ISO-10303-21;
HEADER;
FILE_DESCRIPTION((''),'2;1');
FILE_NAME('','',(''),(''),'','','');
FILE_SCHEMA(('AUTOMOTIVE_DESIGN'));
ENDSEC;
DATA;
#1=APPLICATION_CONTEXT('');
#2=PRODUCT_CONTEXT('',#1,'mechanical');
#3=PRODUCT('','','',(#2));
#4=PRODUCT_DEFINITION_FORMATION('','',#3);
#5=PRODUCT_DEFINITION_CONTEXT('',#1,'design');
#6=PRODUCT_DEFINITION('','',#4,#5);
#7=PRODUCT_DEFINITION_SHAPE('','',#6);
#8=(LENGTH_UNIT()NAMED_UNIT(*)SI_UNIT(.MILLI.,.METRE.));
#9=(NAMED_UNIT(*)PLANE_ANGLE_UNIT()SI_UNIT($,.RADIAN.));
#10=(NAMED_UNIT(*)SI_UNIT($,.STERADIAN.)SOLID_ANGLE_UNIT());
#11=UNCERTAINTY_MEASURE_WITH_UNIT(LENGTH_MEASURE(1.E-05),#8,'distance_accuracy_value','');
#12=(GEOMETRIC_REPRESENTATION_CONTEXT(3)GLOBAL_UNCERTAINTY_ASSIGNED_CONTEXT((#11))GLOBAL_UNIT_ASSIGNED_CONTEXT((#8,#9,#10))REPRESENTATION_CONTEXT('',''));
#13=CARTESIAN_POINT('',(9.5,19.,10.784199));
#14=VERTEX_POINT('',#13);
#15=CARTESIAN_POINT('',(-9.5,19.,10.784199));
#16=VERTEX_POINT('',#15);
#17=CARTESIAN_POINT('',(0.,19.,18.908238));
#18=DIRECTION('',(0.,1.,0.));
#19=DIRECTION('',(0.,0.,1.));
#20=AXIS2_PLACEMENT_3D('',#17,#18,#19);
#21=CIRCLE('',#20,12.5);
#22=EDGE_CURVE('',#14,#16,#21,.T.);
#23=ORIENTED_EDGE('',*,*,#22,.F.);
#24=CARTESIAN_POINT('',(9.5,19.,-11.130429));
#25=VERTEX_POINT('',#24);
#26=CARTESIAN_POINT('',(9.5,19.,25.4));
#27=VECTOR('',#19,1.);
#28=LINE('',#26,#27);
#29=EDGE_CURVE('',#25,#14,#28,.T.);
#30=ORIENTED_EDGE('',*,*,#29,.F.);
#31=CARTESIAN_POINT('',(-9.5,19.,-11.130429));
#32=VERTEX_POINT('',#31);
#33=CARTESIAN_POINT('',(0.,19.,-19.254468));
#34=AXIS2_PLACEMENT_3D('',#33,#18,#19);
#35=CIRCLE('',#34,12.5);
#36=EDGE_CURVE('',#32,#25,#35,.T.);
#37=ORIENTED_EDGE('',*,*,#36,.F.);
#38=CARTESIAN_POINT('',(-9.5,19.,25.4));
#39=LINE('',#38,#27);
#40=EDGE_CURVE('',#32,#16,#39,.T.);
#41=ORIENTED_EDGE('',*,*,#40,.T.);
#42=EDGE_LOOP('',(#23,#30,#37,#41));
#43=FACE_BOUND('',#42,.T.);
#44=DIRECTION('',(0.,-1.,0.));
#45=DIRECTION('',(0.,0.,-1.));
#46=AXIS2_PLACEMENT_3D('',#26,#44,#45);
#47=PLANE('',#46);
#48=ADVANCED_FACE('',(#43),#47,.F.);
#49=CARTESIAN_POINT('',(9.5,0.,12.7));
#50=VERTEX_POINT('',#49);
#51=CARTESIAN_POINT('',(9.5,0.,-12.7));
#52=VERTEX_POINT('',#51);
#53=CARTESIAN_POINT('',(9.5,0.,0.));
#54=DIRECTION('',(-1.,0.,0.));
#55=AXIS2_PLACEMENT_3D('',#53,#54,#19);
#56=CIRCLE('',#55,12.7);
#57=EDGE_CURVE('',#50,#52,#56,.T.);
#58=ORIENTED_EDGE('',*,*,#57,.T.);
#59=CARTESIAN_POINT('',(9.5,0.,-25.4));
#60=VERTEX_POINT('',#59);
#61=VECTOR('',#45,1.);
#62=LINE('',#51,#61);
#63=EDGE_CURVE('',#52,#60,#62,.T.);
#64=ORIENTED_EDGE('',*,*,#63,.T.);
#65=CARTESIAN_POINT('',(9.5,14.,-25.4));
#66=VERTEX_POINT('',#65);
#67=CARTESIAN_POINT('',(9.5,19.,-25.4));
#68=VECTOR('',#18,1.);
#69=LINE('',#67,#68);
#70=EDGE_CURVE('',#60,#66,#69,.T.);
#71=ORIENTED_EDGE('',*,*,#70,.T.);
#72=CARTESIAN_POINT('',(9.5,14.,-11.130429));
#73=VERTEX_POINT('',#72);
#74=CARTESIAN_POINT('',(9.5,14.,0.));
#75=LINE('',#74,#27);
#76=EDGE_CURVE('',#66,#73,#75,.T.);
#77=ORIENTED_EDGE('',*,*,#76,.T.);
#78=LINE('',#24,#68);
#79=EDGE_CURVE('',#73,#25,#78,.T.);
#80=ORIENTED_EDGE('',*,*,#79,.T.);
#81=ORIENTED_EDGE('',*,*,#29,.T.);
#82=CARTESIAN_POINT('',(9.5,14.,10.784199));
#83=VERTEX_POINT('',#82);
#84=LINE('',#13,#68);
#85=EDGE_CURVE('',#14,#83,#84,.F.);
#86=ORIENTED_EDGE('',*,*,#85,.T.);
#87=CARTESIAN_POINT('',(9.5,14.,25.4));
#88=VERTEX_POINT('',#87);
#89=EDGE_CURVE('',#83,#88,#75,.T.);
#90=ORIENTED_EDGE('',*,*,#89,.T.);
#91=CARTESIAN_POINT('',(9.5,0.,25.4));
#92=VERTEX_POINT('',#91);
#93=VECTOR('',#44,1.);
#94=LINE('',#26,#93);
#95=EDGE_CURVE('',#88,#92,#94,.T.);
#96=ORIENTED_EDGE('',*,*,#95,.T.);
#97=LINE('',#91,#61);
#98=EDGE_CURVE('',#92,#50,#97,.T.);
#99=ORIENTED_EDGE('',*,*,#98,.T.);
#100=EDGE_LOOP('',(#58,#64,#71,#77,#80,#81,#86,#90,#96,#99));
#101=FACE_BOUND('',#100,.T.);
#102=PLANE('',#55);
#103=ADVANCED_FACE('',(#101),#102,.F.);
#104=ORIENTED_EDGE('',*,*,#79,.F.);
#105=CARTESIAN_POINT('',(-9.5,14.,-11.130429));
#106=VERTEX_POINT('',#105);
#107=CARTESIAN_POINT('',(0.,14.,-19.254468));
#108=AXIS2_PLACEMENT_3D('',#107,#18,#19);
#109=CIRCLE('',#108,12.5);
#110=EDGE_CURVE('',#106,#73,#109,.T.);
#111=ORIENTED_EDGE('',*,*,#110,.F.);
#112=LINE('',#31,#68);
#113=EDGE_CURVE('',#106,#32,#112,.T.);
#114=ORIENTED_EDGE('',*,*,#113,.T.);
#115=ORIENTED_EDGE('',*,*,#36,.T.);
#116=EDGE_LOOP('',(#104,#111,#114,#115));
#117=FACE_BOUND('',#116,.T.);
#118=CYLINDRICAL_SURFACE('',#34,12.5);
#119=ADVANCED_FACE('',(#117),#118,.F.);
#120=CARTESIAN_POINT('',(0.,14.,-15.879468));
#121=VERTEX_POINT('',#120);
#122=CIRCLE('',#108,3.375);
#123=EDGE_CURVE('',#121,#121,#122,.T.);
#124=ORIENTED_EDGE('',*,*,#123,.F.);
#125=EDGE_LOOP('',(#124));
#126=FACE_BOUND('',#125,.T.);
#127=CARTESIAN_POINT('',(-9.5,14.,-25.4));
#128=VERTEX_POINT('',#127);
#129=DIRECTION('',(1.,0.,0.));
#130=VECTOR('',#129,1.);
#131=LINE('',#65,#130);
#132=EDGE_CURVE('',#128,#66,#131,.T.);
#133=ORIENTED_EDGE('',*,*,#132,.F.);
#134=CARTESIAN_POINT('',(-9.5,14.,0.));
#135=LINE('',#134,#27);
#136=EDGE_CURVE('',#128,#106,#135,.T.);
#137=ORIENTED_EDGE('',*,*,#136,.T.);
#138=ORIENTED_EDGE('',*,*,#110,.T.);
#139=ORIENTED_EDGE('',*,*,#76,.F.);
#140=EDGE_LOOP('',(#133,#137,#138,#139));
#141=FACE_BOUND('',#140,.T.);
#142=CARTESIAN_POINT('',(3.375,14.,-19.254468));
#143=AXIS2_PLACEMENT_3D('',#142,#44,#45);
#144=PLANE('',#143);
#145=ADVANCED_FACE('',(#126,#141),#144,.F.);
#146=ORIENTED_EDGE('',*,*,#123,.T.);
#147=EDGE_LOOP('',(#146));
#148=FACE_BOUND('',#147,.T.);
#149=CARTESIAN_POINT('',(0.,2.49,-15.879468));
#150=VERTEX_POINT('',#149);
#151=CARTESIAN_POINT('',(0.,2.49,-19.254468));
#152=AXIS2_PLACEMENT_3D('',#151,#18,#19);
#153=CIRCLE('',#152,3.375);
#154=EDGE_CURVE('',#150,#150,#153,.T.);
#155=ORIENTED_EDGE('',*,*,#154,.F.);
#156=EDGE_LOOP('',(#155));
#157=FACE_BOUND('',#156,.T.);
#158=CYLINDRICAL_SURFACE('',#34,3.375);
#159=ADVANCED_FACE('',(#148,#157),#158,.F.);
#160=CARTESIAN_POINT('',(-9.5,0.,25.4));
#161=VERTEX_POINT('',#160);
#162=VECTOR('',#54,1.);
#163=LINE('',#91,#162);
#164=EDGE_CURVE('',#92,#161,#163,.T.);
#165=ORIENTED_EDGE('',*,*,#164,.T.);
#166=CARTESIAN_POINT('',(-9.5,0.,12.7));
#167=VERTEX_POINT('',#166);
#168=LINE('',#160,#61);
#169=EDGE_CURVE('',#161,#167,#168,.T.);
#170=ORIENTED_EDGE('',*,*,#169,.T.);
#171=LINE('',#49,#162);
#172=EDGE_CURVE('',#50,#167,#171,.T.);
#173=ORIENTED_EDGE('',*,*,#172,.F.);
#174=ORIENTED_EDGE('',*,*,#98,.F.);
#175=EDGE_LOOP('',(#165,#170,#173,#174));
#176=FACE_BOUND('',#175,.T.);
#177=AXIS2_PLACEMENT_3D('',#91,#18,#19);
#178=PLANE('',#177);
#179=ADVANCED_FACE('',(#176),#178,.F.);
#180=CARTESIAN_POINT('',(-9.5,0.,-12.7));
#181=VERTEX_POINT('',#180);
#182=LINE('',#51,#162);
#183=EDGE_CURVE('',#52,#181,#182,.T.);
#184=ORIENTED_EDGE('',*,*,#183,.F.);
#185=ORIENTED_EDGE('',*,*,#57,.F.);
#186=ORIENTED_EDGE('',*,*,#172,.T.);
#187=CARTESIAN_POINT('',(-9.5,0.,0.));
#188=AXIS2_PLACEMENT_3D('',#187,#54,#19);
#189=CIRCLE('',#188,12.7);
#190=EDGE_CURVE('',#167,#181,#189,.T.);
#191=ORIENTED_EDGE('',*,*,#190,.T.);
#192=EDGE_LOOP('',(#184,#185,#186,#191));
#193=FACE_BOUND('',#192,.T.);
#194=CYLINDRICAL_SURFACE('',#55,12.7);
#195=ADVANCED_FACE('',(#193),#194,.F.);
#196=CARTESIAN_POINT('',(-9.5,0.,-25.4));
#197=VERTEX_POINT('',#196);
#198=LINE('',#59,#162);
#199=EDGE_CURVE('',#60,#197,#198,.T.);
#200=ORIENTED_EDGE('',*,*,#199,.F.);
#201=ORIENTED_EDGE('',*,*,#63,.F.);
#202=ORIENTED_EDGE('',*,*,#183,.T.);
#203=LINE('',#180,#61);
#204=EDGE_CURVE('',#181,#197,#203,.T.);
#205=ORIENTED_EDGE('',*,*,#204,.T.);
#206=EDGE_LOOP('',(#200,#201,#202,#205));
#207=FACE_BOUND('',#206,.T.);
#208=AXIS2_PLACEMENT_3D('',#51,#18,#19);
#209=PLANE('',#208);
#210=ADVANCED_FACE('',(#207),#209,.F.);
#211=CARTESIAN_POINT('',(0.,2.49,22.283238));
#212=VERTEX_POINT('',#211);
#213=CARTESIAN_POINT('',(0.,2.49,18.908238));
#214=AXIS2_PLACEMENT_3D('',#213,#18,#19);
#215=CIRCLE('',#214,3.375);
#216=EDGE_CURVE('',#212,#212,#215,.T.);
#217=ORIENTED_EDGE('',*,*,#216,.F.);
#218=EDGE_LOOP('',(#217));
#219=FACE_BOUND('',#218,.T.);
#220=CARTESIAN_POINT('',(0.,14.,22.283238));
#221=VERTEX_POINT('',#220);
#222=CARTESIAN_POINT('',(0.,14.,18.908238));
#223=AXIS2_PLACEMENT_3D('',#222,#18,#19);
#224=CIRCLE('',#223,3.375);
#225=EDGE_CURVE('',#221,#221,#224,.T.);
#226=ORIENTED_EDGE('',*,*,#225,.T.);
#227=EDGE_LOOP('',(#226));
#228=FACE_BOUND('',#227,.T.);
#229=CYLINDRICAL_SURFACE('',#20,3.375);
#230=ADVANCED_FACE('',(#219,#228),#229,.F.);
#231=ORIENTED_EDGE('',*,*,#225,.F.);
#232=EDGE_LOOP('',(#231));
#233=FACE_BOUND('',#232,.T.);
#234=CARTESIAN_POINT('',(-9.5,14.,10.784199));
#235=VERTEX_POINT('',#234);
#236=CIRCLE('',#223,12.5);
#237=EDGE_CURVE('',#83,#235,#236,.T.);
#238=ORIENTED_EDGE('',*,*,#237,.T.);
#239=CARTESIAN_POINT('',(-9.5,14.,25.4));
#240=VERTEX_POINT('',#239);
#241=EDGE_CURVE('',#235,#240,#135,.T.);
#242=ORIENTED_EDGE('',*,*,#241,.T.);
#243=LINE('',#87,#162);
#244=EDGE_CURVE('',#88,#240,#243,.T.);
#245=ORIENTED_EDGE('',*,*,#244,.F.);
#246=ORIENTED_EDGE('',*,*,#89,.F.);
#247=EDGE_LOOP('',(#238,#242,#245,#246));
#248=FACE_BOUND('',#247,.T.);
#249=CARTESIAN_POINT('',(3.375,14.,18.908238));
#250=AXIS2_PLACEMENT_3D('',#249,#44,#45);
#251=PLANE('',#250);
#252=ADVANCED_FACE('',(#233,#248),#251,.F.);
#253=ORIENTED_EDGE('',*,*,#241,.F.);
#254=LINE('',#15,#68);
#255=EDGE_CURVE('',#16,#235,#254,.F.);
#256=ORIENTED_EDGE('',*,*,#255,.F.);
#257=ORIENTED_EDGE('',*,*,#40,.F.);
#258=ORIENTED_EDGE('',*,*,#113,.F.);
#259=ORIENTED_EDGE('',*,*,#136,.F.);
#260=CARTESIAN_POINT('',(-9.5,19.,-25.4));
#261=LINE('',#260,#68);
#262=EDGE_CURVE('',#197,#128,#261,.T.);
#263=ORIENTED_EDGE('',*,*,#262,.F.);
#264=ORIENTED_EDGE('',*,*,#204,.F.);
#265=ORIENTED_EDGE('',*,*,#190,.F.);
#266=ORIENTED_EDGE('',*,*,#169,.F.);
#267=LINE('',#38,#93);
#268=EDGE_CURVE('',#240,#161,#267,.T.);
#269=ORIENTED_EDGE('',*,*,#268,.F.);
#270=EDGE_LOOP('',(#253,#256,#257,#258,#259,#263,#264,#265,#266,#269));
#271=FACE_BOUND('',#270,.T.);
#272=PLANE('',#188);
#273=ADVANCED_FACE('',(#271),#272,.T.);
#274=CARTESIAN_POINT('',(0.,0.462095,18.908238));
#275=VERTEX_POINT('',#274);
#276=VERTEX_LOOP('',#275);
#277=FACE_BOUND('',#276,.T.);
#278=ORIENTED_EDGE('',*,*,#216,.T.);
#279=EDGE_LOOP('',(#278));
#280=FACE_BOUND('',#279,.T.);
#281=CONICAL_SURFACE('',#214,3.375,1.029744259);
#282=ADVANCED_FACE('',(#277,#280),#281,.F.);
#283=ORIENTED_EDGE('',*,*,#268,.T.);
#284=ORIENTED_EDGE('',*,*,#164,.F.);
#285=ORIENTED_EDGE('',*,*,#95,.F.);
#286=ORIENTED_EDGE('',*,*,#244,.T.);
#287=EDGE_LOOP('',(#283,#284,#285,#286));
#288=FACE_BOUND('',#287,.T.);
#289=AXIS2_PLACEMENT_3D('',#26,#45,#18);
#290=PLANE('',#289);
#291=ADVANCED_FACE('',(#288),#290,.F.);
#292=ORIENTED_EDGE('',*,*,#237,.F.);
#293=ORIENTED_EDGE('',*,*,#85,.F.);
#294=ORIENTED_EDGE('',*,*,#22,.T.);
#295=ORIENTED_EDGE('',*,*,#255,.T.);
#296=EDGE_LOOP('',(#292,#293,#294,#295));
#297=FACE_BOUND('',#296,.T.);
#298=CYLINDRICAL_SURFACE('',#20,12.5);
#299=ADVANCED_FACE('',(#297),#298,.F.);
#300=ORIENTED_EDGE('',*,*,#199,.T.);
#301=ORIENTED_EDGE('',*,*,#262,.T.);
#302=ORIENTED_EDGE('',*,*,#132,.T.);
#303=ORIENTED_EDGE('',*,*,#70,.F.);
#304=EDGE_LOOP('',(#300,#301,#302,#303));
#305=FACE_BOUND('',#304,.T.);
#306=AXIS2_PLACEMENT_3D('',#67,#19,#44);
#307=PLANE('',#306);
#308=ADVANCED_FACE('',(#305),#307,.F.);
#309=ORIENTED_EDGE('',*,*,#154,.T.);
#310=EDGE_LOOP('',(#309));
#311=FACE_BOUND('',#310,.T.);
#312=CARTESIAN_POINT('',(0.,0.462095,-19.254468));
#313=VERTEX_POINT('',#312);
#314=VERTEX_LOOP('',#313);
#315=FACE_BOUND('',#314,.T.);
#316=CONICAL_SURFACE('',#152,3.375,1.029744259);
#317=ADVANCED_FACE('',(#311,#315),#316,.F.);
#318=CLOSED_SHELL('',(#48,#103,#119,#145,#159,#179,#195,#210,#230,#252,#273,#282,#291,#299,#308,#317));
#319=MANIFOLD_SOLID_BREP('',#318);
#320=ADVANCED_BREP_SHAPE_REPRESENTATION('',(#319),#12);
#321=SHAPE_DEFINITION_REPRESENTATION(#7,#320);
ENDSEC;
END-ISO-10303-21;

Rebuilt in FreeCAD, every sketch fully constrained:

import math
import FreeCAD as App
import Part
import Sketcher
Q = App.Units.Quantity

doc = App.newDocument("Part")
body = doc.addObject("PartDesign::Body", "Body")

# Sketch on YZ plane
sketch1 = body.newObject("Sketcher::SketchObject", "Sketch")
sketch1.AttachmentSupport = (doc.getObject("YZ_Plane"), [""])
sketch1.MapMode = "FlatFace"
sketch1.addGeometry([
    Part.LineSegment(App.Vector(0, -12.7, 0), App.Vector(0, -25.4, 0)),  # 0
    Part.LineSegment(App.Vector(0, -25.4, 0), App.Vector(19, -25.4, 0)),  # 1
    Part.LineSegment(App.Vector(19, -25.4, 0), App.Vector(19, 25.4, 0)),  # 2
    Part.LineSegment(App.Vector(19, 25.4, 0), App.Vector(0, 25.4, 0)),  # 3
    Part.LineSegment(App.Vector(0, 25.4, 0), App.Vector(0, 12.7, 0)),  # 4
    Part.ArcOfCircle(Part.Circle(App.Vector(0, 0, 0), App.Vector(0, 0, 1), 12.7), math.radians(-90), math.radians(90)),  # 5
], False)
sketch1.addConstraint([
    Sketcher.Constraint("Coincident", 0, 2, 1, 1),
    Sketcher.Constraint("Coincident", 1, 2, 2, 1),
    Sketcher.Constraint("Coincident", 2, 2, 3, 1),
    Sketcher.Constraint("Coincident", 3, 2, 4, 1),
    Sketcher.Constraint("Coincident", 4, 2, 5, 2),
    Sketcher.Constraint("Coincident", 5, 1, 0, 1),
    Sketcher.Constraint("Vertical", 0),
    Sketcher.Constraint("Horizontal", 1),
    Sketcher.Constraint("Vertical", 2),
    Sketcher.Constraint("Horizontal", 3),
    Sketcher.Constraint("Vertical", 4),
    Sketcher.Constraint("Coincident", 5, 3, -1, 1),
    Sketcher.Constraint("Symmetric", 0, 2, 3, 2, -1, 1),
    Sketcher.Constraint("PointOnObject", 0, 2, -2),
    Sketcher.Constraint("Radius", 5, Q("0.5 in")),
    Sketcher.Constraint("DistanceY", 2, 1, 2, 2, Q("2 in")),
    Sketcher.Constraint("DistanceX", 1, 1, 1, 2, Q("19 mm")),
])
pad1 = body.newObject("PartDesign::Pad", "Pad")
pad1.Profile = sketch1
pad1.Length = 19
pad1.Midplane = True

# Sketch on XZ plane
sketch2 = body.newObject("Sketcher::SketchObject", "Sketch001")
sketch2.AttachmentSupport = (doc.getObject("XZ_Plane"), [""])
sketch2.MapMode = "FlatFace"
sketch2.AttachmentOffset = App.Placement(App.Vector(0, 0, -19), App.Rotation())
sketch2.addGeometry([
    Part.Circle(App.Vector(0, -19.254468, 0), App.Vector(0, 0, 1), 3.375),
    Part.Circle(App.Vector(0, 18.908238, 0), App.Vector(0, 0, 1), 3.375),
], False)
sketch2.addConstraint([
    Sketcher.Constraint("Equal", 0, 1),
    Sketcher.Constraint("PointOnObject", 0, 3, -2),
    Sketcher.Constraint("PointOnObject", 1, 3, -2),
    Sketcher.Constraint("Diameter", 0, Q("6.75 mm")),
    Sketcher.Constraint("DistanceY", 0, 3, -1, 1, Q("19.254468 mm")),
    Sketcher.Constraint("DistanceY", -1, 1, 1, 3, Q("18.908238 mm")),
])
doc.recompute()
hole = body.newObject("PartDesign::Hole", "Hole")
hole.Profile = sketch2
hole.ThreadType = "None"
hole.Diameter = 6.75
hole.DepthType = "Dimension"
hole.Depth = Q("0.65 in")
hole.DrillPoint = "Angled"
hole.DrillPointAngle = 118
hole.HoleCutType = "Counterbore"
hole.HoleCutDiameter = 25
hole.HoleCutDepth = 5
hole.Reversed = True

doc.recompute()
